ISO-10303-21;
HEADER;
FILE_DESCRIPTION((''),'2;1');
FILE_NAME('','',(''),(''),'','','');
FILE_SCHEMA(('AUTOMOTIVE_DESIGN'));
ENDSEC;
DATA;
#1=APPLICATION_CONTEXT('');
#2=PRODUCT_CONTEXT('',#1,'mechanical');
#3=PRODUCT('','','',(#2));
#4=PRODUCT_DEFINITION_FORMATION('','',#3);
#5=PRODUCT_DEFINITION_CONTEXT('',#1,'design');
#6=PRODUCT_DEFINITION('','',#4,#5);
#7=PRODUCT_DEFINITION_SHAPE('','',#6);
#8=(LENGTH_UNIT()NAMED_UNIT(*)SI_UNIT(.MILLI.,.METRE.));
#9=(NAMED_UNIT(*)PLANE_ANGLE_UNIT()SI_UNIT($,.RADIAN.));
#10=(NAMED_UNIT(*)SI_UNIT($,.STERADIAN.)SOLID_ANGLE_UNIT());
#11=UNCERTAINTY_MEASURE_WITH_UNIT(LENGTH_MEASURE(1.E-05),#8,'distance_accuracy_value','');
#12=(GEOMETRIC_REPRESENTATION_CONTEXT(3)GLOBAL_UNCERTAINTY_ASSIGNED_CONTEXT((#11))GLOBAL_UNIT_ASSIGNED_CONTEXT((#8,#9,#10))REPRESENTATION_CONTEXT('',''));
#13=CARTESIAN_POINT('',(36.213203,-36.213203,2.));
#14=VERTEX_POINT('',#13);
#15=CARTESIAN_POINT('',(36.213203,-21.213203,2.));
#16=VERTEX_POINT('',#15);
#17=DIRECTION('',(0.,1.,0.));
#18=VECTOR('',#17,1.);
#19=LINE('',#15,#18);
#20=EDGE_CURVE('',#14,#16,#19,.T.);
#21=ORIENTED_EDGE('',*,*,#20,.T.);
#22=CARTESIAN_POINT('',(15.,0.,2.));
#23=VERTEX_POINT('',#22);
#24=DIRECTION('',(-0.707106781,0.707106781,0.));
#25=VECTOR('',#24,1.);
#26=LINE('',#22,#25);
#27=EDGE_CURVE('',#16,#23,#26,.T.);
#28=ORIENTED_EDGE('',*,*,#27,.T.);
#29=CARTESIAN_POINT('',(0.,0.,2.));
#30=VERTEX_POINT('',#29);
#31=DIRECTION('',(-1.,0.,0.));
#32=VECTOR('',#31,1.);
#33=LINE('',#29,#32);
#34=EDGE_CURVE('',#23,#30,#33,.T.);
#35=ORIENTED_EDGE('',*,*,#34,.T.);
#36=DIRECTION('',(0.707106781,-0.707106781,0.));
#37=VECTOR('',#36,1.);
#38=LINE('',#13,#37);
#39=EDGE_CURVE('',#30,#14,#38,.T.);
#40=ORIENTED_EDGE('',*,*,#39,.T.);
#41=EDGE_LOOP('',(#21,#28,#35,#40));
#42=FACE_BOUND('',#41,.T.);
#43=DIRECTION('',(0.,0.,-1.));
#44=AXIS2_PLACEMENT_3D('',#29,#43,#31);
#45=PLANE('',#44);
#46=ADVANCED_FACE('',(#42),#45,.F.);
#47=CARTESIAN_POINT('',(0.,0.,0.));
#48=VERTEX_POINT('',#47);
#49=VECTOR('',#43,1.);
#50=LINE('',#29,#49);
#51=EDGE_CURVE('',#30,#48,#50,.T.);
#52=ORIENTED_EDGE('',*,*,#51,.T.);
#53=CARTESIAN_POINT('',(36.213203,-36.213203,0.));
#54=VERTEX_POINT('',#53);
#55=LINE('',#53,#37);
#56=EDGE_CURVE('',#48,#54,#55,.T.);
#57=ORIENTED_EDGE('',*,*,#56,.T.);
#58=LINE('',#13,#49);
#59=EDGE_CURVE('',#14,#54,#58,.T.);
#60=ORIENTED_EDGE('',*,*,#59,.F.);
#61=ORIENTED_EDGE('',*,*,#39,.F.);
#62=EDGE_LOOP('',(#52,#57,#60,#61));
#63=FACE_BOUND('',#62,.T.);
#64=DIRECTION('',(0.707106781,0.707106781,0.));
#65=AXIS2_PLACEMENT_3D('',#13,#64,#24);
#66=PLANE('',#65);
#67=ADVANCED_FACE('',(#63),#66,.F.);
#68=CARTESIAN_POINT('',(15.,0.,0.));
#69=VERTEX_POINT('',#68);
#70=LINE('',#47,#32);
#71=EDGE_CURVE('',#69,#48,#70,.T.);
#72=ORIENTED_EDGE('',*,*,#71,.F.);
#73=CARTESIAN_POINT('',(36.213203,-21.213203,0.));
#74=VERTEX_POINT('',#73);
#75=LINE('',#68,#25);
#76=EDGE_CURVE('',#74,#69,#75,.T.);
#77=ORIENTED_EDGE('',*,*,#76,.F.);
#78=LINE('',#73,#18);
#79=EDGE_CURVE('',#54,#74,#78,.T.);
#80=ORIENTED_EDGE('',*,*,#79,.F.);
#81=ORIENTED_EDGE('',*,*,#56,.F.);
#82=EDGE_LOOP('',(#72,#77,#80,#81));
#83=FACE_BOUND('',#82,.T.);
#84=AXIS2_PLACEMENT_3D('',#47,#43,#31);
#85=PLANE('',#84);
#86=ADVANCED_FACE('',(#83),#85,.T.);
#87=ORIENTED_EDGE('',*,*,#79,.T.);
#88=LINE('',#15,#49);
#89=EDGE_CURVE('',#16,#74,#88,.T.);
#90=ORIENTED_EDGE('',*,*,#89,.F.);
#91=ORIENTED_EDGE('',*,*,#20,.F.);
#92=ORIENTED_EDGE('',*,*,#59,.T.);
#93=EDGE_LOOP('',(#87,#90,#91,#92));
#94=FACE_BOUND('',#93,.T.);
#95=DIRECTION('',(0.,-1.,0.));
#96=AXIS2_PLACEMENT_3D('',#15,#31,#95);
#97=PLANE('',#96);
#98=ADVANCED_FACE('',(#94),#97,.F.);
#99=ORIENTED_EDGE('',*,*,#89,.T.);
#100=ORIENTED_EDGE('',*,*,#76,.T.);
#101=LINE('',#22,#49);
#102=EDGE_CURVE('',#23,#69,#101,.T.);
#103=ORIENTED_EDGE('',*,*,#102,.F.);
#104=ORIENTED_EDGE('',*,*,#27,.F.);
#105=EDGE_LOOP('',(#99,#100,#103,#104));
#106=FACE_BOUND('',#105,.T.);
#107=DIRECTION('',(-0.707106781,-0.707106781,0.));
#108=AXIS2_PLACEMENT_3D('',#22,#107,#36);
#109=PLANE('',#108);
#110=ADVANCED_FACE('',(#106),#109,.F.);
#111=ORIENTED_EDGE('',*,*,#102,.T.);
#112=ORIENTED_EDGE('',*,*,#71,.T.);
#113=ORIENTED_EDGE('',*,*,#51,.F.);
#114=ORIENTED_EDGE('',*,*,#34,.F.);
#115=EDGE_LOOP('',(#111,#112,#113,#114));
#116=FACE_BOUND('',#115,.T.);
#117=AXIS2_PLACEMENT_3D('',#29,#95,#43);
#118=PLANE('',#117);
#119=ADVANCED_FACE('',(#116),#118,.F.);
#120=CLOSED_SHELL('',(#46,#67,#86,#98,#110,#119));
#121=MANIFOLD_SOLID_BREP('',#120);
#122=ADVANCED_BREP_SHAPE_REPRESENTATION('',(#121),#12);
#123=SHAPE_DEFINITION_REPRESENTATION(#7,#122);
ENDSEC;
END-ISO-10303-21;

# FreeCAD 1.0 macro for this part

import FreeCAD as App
import Part
import Sketcher
from FreeCAD import Vector
Q = App.Units.Quantity

doc = App.newDocument("Part")
params = doc.addObject("Spreadsheet::Sheet", "Params")
for row, (alias, value) in enumerate([
    ("sketch1_width", "15 mm"),
    ("sketch1_length", "30 mm"),
    ("pad1_length", "2 mm"),
], start=1):
    params.set(f"A{row}", alias)
    params.set(f"B{row}", "=" + value)
    params.setAlias(f"B{row}", alias)

body = doc.addObject("PartDesign::Body", "Body")

# Sketch on XY plane
sketch1 = body.newObject("Sketcher::SketchObject", "Sketch")
sketch1.AttachmentSupport = (doc.getObject("XY_Plane"), [""])
sketch1.MapMode = "FlatFace"
sketch1.addGeometry(Part.LineSegment(Vector(15, 0, 0), Vector(0, 0, 0)), False)
sketch1.addGeometry(Part.LineSegment(Vector(0, 0, 0), Vector(36.213203, -36.213203, 0)), False)
sketch1.addGeometry(Part.LineSegment(Vector(36.213203, -36.213203, 0), Vector(36.213203, -21.213203, 0)), False)
sketch1.addGeometry(Part.LineSegment(Vector(36.213203, -21.213203, 0), Vector(15, 0, 0)), False)
sketch1.addConstraint(Sketcher.Constraint("Coincident", 0, 2, 1, 1))
sketch1.addConstraint(Sketcher.Constraint("Coincident", 1, 2, 2, 1))
sketch1.addConstraint(Sketcher.Constraint("Coincident", 2, 2, 3, 1))
sketch1.addConstraint(Sketcher.Constraint("Coincident", 3, 2, 0, 1))
sketch1.addConstraint(Sketcher.Constraint("Horizontal", 0))
sketch1.addConstraint(Sketcher.Constraint("Vertical", 2))
sketch1.addConstraint(Sketcher.Constraint("Coincident", 0, 2, -1, 1))
sketch1.addConstraint(Sketcher.Constraint("Parallel", 1, 3))
sketch1.addConstraint(Sketcher.Constraint("Equal", 0, 2))
sketch1.addConstraint(Sketcher.Constraint("DistanceX", 0, 2, 0, 1, Q("15 mm")))
sketch1.addConstraint(Sketcher.Constraint("Distance", 3, Q("30 mm")))
sketch1.setExpression("Constraints[9]", "Params.sketch1_width")
sketch1.setExpression("Constraints[10]", "Params.sketch1_length")
pad1 = body.newObject("PartDesign::Pad", "Pad")
pad1.Profile = sketch1
pad1.setExpression("Length", "Params.pad1_length")

doc.recompute()
